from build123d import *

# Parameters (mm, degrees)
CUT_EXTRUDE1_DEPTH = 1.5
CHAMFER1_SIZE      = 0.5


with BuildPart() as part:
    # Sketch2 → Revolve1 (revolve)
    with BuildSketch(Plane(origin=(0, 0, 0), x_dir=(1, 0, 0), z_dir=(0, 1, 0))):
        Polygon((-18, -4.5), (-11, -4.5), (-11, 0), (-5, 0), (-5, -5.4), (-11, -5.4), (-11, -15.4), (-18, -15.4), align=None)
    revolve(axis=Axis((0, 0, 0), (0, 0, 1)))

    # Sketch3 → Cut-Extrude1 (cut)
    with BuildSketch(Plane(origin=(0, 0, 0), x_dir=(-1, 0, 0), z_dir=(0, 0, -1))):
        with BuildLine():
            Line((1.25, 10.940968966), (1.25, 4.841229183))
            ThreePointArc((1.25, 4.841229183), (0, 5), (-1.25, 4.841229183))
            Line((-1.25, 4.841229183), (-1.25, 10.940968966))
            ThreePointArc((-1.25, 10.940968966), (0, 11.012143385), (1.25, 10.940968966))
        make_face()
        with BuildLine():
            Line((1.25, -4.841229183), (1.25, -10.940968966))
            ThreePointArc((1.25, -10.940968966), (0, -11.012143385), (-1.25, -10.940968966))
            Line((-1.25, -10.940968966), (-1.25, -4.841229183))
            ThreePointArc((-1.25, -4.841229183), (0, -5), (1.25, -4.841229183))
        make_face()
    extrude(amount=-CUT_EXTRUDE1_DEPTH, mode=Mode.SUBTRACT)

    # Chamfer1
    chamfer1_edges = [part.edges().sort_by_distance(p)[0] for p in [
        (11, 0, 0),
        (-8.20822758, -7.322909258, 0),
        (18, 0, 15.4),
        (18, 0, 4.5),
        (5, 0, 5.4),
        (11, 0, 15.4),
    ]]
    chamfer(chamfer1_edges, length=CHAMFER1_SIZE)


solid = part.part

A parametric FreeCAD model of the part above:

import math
import FreeCAD as App
import Part
import Sketcher
Q = App.Units.Quantity


def edges_at(feature, points):
    """Names of the edges that pass closest to the given points."""
    edges = feature.Shape.Edges
    near = lambda p: min(range(len(edges)), key=lambda i: edges[i].distToShape(Part.Vertex(*p))[0])
    return sorted({f"Edge{near(p) + 1}" for p in points})

doc = App.newDocument("Part")
body = doc.addObject("PartDesign::Body", "Body")

# Sketch on XZ plane
sketch1 = doc.addObject("Sketcher::SketchObject", "Sketch")
body.addObject(sketch1)
sketch1.AttachmentSupport = (doc.XZ_Plane, [""])
sketch1.MapMode = "FlatFace"
sketch1.addGeometry(Part.LineSegment(App.Vector(-11, 4.5, 0), App.Vector(-18, 4.5, 0)), False)
sketch1.addGeometry(Part.LineSegment(App.Vector(-18, 4.5, 0), App.Vector(-18, 15.4, 0)), False)
sketch1.addGeometry(Part.LineSegment(App.Vector(-18, 15.4, 0), App.Vector(-11, 15.4, 0)), False)
sketch1.addGeometry(Part.LineSegment(App.Vector(-11, 15.4, 0), App.Vector(-11, 5.4, 0)), False)
sketch1.addGeometry(Part.LineSegment(App.Vector(-11, 5.4, 0), App.Vector(-5, 5.4, 0)), False)
sketch1.addGeometry(Part.LineSegment(App.Vector(-5, 5.4, 0), App.Vector(-5, 0, 0)), False)
sketch1.addGeometry(Part.LineSegment(App.Vector(-5, 0, 0), App.Vector(-11, 0, 0)), False)
sketch1.addGeometry(Part.LineSegment(App.Vector(-11, 0, 0), App.Vector(-11, 4.5, 0)), False)
sketch1.addConstraint(Sketcher.Constraint("Coincident", 0, 2, 1, 1))
sketch1.addConstraint(Sketcher.Constraint("Coincident", 1, 2, 2, 1))
sketch1.addConstraint(Sketcher.Constraint("Coincident", 2, 2, 3, 1))
sketch1.addConstraint(Sketcher.Constraint("Coincident", 3, 2, 4, 1))
sketch1.addConstraint(Sketcher.Constraint("Coincident", 4, 2, 5, 1))
sketch1.addConstraint(Sketcher.Constraint("Coincident", 5, 2, 6, 1))
sketch1.addConstraint(Sketcher.Constraint("Coincident", 6, 2, 7, 1))
sketch1.addConstraint(Sketcher.Constraint("Coincident", 7, 2, 0, 1))
sketch1.addConstraint(Sketcher.Constraint("Horizontal", 0))
sketch1.addConstraint(Sketcher.Constraint("Vertical", 1))
sketch1.addConstraint(Sketcher.Constraint("Horizontal", 2))
sketch1.addConstraint(Sketcher.Constraint("Vertical", 3))
sketch1.addConstraint(Sketcher.Constraint("Horizontal", 4))
sketch1.addConstraint(Sketcher.Constraint("Vertical", 5))
sketch1.addConstraint(Sketcher.Constraint("Horizontal", 6))
sketch1.addConstraint(Sketcher.Constraint("Vertical", 7))
sketch1.addConstraint(Sketcher.Constraint("PointOnObject", 5, 2, -1))
sketch1.addConstraint(Sketcher.Constraint("Vertical", 3, 2, 6, 2))
sketch1.addConstraint(Sketcher.Constraint("DistanceX", 0, 2, 0, 1, Q("7 mm")))
sketch1.addConstraint(Sketcher.Constraint("DistanceX", 4, 1, 4, 2, Q("6 mm")))
sketch1.addConstraint(Sketcher.Constraint("DistanceY", 3, 2, 3, 1, Q("10 mm")))
sketch1.addConstraint(Sketcher.Constraint("DistanceY", 1, 1, 1, 2, Q("10.9 mm")))
sketch1.addConstraint(Sketcher.Constraint("DistanceY", 5, 2, 5, 1, Q("5.4 mm")))
sketch1.addConstraint(Sketcher.Constraint("DistanceX", 0, 2, -1, 1, Q("18 mm")))
revolution = doc.addObject("PartDesign::Revolution", "Revolution")
body.addObject(revolution)
revolution.Profile = sketch1
revolution.ReferenceAxis = (sketch1, ["V_Axis"])
revolution.Angle = 360

# Sketch on XY plane
sketch2 = doc.addObject("Sketcher::SketchObject", "Sketch001")
body.addObject(sketch2)
sketch2.AttachmentSupport = (doc.XY_Plane, [""])
sketch2.MapMode = "FlatFace"
sketch2.addGeometry(Part.LineSegment(App.Vector(-1.2, 4.8, 0), App.Vector(-1.2, 10.9, 0)), False)
sketch2.addGeometry(Part.ArcOfCircle(Part.Circle(App.Vector(0, 0, 0), App.Vector(0, 0, 1), 11), math.radians(83.48), math.radians(96.52)), False)
sketch2.addGeometry(Part.LineSegment(App.Vector(1.2, 10.9, 0), App.Vector(1.2, 4.8, 0)), False)
sketch2.addGeometry(Part.ArcOfCircle(Part.Circle(App.Vector(0, 0, 0), App.Vector(0, 0, 1), 5), math.radians(76), math.radians(104)), False)
sketch2.addGeometry(Part.LineSegment(App.Vector(-1.2, -10.9, 0), App.Vector(-1.2, -4.8, 0)), False)
sketch2.addGeometry(Part.ArcOfCircle(Part.Circle(App.Vector(0, 0, 0), App.Vector(0, 0, 1), 5), math.radians(-104), math.radians(-76)), False)
sketch2.addGeometry(Part.LineSegment(App.Vector(1.2, -4.8, 0), App.Vector(1.2, -10.9, 0)), False)
sketch2.addGeometry(Part.ArcOfCircle(Part.Circle(App.Vector(0, 0, 0), App.Vector(0, 0, 1), 11), math.radians(-96.52), math.radians(-83.48)), False)
sketch2.addConstraint(Sketcher.Constraint("Coincident", 0, 2, 1, 2))
sketch2.addConstraint(Sketcher.Constraint("Coincident", 1, 1, 2, 1))
sketch2.addConstraint(Sketcher.Constraint("Coincident", 2, 2, 3, 1))
sketch2.addConstraint(Sketcher.Constraint("Coincident", 3, 2, 0, 1))
sketch2.addConstraint(Sketcher.Constraint("Coincident", 4, 2, 5, 1))
sketch2.addConstraint(Sketcher.Constraint("Coincident", 5, 2, 6, 1))
sketch2.addConstraint(Sketcher.Constraint("Coincident", 6, 2, 7, 2))
sketch2.addConstraint(Sketcher.Constraint("Coincident", 7, 1, 4, 1))
sketch2.addConstraint(Sketcher.Constraint("Vertical", 0))
sketch2.addConstraint(Sketcher.Constraint("Vertical", 2))
sketch2.addConstraint(Sketcher.Constraint("Vertical", 4))
sketch2.addConstraint(Sketcher.Constraint("Vertical", 6))
sketch2.addConstraint(Sketcher.Constraint("Coincident", 1, 3, -1, 1))
sketch2.addConstraint(Sketcher.Constraint("Coincident", 3, 3, -1, 1))
sketch2.addConstraint(Sketcher.Constraint("Coincident", 5, 3, -1, 1))
sketch2.addConstraint(Sketcher.Constraint("Coincident", 7, 3, -1, 1))
sketch2.addConstraint(Sketcher.Constraint("Equal", 3, 5))
sketch2.addConstraint(Sketcher.Constraint("Equal", 1, 7))
sketch2.addConstraint(Sketcher.Constraint("Horizontal", 0, 2, 1, 1))
sketch2.addConstraint(Sketcher.Constraint("Horizontal", 4, 2, 5, 2))
sketch2.addConstraint(Sketcher.Constraint("Vertical", 3, 2, 4, 2))
sketch2.addConstraint(Sketcher.Constraint("Radius", 3, Q("5 mm")))
sketch2.addConstraint(Sketcher.Constraint("DistanceX", 0, 2, 1, 1, Q("2.5 mm")))
sketch2.addConstraint(Sketcher.Constraint("Radius", 1, Q("11.012143 mm")))
pocket1 = doc.addObject("PartDesign::Pocket", "Pocket")
body.addObject(pocket1)
pocket1.Profile = sketch2
pocket1.Length = 1.5
pocket1.Reversed = True
doc.recompute()

chamfer = doc.addObject("PartDesign::Chamfer", "Chamfer")
body.addObject(chamfer)
chamfer.Base = (pocket1, edges_at(pocket1, [
    (11, 0, 0),
    (-8.208, -7.323, 0),
    (18, 0, 15.4),
    (18, 0, 4.5),
    (5, 0, 5.4),
    (11, 0, 15.4),
]))
chamfer.Size = 0.5

doc.recompute()
